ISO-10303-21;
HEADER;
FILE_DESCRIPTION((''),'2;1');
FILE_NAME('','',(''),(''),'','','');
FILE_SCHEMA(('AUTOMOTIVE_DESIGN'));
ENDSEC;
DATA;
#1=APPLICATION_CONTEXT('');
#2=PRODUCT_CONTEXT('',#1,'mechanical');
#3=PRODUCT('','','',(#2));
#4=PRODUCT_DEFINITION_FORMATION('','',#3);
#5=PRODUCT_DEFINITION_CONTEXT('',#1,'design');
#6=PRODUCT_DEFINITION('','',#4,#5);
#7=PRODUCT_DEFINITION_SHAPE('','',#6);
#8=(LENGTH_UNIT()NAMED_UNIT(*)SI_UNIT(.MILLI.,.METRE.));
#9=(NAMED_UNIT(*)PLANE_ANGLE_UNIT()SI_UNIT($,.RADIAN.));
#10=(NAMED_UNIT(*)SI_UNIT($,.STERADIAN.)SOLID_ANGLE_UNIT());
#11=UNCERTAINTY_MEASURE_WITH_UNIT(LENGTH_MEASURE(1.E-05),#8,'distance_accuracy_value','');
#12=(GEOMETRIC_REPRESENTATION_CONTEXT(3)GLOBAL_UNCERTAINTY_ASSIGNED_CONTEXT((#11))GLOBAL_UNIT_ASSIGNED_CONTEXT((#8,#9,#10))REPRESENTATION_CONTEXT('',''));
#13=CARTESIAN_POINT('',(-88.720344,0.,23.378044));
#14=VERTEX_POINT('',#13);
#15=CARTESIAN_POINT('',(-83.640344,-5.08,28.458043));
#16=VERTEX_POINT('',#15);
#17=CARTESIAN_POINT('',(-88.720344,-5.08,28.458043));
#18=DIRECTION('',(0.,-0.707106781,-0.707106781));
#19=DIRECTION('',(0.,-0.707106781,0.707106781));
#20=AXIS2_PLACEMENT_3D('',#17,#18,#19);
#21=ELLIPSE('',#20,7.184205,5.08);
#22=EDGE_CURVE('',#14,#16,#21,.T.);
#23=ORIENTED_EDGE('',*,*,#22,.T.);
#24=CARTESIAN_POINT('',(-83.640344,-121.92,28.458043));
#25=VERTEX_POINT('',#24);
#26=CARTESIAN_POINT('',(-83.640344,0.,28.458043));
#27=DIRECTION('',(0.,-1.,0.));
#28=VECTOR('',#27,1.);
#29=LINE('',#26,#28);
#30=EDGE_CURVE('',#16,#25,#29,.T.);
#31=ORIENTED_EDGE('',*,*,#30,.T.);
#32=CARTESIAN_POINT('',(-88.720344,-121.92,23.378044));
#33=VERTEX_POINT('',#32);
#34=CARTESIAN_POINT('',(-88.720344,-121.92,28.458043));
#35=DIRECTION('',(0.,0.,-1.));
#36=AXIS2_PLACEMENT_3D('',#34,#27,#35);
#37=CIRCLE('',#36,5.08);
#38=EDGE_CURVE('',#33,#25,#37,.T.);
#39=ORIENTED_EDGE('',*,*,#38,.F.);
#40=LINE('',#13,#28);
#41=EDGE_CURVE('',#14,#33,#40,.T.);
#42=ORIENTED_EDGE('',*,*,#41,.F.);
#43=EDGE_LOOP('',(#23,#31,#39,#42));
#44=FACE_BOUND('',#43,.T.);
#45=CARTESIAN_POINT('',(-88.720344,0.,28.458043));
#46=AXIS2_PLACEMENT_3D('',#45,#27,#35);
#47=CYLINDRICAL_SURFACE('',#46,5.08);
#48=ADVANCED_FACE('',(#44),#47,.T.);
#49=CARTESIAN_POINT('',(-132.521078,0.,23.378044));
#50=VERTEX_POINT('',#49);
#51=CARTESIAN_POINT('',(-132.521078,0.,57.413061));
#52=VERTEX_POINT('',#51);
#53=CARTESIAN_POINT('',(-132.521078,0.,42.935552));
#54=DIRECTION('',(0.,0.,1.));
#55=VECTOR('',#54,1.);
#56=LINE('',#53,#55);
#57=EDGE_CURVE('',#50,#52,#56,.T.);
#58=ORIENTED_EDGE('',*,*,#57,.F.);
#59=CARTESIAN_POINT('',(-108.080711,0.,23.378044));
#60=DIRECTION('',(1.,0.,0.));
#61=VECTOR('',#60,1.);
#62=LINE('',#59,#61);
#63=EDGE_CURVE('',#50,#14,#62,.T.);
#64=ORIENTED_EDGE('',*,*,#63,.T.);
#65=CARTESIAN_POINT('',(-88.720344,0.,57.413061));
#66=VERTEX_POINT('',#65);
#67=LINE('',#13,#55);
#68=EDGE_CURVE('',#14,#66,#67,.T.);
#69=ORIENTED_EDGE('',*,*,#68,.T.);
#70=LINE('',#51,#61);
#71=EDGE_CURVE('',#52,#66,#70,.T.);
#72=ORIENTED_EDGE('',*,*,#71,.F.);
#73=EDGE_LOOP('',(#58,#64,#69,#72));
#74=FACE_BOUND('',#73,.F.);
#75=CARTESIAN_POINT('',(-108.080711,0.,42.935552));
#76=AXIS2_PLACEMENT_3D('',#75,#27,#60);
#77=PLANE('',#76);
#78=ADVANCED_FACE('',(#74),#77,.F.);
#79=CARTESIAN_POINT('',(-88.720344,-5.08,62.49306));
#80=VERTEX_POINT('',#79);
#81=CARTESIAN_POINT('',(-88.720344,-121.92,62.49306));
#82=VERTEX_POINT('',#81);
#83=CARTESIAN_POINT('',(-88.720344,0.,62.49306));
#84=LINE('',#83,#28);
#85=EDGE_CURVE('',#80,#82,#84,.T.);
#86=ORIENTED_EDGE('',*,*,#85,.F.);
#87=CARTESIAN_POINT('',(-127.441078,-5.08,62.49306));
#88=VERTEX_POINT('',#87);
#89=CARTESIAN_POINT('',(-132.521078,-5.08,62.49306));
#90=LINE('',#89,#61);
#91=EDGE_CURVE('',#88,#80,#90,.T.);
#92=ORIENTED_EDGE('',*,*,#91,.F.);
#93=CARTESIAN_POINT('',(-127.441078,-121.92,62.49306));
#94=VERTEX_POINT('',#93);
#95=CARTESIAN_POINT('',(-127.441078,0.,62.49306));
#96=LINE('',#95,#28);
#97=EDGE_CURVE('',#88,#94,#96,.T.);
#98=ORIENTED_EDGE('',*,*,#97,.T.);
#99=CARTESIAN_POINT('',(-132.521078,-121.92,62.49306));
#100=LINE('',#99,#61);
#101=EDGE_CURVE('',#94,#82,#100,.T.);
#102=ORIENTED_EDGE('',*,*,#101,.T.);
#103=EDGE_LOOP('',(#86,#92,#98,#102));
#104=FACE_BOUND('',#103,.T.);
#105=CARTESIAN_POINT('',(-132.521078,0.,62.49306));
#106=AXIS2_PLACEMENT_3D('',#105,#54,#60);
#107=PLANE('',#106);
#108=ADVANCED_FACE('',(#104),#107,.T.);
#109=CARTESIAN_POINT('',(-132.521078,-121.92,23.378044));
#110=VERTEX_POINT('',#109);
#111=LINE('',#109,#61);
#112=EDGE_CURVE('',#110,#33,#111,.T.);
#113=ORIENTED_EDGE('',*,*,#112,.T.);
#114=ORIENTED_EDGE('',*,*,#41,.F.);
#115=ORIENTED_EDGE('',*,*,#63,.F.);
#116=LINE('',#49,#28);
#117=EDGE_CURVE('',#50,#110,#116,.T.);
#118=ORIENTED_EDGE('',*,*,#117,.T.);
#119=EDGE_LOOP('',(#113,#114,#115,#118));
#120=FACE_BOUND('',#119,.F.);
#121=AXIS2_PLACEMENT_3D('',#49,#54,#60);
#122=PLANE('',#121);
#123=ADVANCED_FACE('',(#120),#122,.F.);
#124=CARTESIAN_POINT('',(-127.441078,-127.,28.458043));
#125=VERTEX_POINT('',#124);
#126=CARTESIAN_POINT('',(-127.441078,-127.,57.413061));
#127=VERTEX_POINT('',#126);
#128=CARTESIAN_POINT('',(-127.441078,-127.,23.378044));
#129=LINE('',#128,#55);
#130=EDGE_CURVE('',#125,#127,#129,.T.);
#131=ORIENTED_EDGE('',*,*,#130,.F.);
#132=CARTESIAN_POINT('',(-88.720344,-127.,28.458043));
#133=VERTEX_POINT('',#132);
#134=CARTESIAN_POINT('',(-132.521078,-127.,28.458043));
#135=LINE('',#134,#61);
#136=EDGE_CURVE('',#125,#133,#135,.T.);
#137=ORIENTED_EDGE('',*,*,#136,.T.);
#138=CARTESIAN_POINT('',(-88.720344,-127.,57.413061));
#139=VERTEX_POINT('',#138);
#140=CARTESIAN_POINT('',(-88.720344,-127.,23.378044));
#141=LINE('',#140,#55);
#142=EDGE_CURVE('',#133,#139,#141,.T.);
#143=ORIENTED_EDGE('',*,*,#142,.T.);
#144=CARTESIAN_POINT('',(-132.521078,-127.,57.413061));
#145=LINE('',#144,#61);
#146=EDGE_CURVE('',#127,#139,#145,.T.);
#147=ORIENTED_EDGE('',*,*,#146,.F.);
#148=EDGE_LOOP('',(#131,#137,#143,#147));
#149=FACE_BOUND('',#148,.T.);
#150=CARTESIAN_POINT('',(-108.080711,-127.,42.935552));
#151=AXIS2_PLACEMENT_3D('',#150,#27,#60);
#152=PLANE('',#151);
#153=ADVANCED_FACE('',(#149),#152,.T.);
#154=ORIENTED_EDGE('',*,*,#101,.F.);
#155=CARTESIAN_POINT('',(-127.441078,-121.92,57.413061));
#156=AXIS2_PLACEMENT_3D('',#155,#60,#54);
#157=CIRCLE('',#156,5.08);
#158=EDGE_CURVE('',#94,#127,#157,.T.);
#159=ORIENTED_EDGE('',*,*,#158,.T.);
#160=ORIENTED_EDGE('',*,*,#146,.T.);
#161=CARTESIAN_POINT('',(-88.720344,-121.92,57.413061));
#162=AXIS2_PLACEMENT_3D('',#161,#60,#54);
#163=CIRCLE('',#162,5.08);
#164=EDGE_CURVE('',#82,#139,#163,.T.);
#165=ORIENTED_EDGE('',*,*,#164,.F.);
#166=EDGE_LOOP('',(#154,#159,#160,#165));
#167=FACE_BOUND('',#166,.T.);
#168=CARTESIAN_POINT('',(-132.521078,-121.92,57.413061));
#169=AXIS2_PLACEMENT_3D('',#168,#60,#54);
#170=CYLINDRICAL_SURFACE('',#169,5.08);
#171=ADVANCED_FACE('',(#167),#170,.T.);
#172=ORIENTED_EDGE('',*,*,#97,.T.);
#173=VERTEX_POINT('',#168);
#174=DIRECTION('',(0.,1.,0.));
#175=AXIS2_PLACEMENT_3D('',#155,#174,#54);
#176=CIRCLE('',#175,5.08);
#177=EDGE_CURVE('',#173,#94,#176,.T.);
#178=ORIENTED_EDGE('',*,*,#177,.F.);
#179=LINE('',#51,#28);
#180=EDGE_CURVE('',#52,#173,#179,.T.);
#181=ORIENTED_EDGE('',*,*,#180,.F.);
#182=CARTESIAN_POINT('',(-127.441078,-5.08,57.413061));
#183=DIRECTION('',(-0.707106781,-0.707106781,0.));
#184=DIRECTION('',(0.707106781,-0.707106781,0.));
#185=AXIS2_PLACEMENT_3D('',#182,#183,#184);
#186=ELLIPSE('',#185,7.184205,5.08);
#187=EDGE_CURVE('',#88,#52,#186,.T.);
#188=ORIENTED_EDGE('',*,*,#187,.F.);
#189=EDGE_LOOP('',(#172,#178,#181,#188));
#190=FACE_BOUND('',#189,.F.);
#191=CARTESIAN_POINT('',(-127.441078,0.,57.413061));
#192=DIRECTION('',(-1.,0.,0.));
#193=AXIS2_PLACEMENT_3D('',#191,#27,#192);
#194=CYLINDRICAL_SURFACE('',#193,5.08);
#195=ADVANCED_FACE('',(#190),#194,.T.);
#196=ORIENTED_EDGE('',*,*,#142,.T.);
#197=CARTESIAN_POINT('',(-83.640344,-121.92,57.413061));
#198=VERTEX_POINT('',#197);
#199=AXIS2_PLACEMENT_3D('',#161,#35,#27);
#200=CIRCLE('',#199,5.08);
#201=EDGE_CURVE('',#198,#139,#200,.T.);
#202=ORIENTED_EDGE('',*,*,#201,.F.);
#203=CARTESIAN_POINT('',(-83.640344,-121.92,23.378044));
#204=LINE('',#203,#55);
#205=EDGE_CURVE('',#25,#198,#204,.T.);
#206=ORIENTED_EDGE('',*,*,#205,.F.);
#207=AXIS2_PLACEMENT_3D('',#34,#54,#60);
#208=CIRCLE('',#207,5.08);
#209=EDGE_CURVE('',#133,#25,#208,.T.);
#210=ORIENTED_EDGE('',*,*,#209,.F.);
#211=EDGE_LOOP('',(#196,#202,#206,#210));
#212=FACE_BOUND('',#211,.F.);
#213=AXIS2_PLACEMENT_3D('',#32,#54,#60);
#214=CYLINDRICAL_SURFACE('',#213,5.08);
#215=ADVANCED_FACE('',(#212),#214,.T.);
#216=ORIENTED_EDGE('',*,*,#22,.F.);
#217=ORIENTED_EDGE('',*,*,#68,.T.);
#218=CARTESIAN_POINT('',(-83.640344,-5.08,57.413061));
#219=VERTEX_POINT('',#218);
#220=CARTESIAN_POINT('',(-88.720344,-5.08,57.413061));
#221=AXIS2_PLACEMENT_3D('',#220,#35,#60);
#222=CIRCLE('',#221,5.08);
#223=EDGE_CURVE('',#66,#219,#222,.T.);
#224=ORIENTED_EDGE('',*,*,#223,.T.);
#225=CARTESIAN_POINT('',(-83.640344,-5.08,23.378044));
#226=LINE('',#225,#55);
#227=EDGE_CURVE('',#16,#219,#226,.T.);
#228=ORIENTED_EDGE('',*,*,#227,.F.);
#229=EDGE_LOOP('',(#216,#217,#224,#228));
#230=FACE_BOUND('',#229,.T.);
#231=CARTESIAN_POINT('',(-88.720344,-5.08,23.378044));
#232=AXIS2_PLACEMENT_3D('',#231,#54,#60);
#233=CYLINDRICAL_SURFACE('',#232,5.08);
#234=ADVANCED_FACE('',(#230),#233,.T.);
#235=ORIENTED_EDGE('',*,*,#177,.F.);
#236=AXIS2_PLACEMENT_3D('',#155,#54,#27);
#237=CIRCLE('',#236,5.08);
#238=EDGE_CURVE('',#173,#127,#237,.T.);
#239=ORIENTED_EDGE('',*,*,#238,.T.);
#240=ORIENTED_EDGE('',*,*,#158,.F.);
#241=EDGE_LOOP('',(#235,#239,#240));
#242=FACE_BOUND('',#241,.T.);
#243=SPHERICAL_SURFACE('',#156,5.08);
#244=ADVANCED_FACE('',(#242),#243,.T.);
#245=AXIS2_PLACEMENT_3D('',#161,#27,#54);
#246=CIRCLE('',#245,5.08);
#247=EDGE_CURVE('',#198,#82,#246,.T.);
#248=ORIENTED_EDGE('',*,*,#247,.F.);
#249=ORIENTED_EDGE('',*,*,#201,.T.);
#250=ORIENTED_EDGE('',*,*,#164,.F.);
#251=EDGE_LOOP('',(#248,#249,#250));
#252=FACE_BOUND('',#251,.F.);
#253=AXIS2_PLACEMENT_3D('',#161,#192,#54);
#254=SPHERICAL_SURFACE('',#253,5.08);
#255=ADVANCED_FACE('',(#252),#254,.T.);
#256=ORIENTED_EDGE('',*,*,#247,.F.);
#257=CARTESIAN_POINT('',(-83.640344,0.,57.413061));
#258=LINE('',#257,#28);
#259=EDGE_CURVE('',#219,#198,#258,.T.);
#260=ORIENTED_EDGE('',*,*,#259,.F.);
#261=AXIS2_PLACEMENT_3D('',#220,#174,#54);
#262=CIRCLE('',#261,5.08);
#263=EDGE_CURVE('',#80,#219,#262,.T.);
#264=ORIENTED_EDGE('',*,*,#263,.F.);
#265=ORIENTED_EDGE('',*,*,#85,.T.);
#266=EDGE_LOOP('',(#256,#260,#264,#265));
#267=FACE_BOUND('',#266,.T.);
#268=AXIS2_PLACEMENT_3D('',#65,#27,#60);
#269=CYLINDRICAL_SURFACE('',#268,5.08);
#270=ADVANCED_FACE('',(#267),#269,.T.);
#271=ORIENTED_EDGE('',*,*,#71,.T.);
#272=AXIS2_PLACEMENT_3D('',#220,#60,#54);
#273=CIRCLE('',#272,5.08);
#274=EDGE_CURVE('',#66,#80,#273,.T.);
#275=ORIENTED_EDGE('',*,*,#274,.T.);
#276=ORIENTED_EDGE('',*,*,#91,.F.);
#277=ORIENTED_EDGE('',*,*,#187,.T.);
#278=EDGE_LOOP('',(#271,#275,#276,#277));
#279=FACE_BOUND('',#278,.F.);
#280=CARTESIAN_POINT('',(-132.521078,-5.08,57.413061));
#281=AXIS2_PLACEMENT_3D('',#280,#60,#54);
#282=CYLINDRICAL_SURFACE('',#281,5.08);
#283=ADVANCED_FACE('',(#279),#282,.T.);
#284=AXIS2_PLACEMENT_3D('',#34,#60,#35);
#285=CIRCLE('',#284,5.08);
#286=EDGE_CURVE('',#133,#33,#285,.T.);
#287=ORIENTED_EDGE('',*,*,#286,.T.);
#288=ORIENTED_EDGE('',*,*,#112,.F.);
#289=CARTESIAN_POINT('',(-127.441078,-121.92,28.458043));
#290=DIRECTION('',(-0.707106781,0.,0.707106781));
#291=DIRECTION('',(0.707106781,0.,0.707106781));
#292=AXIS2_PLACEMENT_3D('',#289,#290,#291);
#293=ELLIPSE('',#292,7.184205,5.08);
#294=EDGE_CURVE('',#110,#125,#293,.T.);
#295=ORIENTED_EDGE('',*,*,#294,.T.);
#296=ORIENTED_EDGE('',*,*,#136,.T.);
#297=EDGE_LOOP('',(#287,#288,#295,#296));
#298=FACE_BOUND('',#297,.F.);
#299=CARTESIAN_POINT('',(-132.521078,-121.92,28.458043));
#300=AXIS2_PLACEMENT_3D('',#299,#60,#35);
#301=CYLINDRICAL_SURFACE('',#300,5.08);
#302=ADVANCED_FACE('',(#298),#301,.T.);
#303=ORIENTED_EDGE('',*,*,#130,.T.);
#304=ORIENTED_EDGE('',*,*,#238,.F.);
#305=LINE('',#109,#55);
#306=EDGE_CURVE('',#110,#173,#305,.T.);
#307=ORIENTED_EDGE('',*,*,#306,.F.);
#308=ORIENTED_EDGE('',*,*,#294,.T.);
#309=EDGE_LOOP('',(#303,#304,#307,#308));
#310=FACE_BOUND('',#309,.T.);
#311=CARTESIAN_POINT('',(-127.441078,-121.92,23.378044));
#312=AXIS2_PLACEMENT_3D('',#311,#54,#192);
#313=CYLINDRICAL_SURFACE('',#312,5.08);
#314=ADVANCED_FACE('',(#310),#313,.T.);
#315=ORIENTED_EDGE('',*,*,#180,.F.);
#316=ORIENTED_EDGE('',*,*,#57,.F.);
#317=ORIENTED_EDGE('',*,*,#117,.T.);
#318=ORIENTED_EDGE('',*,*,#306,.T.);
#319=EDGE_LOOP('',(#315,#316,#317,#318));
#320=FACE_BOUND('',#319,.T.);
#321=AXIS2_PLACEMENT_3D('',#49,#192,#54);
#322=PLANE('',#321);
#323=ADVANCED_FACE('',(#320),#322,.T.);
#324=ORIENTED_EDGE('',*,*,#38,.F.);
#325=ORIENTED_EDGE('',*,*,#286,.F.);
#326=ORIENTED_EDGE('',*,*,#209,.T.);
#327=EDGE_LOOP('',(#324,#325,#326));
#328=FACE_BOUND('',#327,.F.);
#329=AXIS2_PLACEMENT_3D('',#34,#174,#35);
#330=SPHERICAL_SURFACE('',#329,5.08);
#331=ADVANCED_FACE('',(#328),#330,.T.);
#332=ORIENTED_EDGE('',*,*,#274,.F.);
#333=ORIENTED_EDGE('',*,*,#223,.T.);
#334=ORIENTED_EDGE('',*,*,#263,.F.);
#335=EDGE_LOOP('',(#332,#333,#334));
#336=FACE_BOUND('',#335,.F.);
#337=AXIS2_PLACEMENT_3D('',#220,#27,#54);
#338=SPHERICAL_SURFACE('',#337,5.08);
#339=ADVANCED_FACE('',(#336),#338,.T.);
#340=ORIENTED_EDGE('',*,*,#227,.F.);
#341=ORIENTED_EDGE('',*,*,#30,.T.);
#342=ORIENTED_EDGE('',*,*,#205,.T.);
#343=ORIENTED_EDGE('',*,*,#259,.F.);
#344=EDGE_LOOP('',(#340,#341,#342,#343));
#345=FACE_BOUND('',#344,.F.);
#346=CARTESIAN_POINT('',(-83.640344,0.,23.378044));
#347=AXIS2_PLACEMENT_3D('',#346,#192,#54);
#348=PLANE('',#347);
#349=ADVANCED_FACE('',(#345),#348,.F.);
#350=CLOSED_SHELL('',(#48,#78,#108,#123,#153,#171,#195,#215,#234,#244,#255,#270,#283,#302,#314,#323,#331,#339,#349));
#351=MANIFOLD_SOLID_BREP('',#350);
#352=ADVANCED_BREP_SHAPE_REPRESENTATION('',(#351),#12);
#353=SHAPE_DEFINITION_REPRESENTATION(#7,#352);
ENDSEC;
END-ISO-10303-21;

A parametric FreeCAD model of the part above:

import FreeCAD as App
import Part
import Sketcher

V = App.Vector
Q = App.Units.Quantity


def edges_at(feature, points):
    """Names of the edges that pass closest to the given points."""
    edges = feature.Shape.Edges
    near = lambda p: min(range(len(edges)), key=lambda i: edges[i].distToShape(Part.Vertex(*p))[0])
    return sorted({f"Edge{near(p) + 1}" for p in points})

doc = App.newDocument("Part")
body = doc.addObject("PartDesign::Body", "Body")

# Sketch on XZ plane
sketch1 = doc.addObject("Sketcher::SketchObject", "Sketch")
body.addObject(sketch1)
sketch1.AttachmentSupport = (doc.XZ_Plane, [""])
sketch1.MapMode = "FlatFace"
sketch1.addGeometry([
    Part.LineSegment(V(-133, 62, 0), V(-133, 23, 0)),
    Part.LineSegment(V(-133, 23, 0), V(-84, 23, 0)),
    Part.LineSegment(V(-84, 23, 0), V(-84, 62, 0)),
    Part.LineSegment(V(-84, 62, 0), V(-133, 62, 0)),
], False)
sketch1.addConstraint([
    Sketcher.Constraint("Coincident", 0, 2, 1, 1),
    Sketcher.Constraint("Coincident", 1, 2, 2, 1),
    Sketcher.Constraint("Coincident", 2, 2, 3, 1),
    Sketcher.Constraint("Coincident", 3, 2, 0, 1),
    Sketcher.Constraint("Vertical", 0),
    Sketcher.Constraint("Horizontal", 1),
    Sketcher.Constraint("Vertical", 2),
    Sketcher.Constraint("Horizontal", 3),
    Sketcher.Constraint("DistanceX", 1, 1, 1, 2, 48.880734),
    Sketcher.Constraint("DistanceY", 0, 2, 0, 1, 39.115017),
    Sketcher.Constraint("DistanceY", -1, 1, 2, 2, 62.49306),
    Sketcher.Constraint("DistanceX", 0, 2, -1, 1, 132.521078),
])
pad1 = doc.addObject("PartDesign::Pad", "Pad")
body.addObject(pad1)
pad1.Profile = sketch1
pad1.Length = Q("5 in")
doc.recompute()

fillet = doc.addObject("PartDesign::Fillet", "Fillet")
body.addObject(fillet)
fillet.Base = (pad1, edges_at(pad1, [
    (-108.081, -127, 62.493),
    (-83.64, -63.5, 62.493),
    (-108.081, 0, 62.493),
    (-132.521, -63.5, 62.493),
    (-83.64, -63.5, 23.378),
    (-108.081, -127, 23.378),
    (-132.521, -127, 42.936),
    (-83.64, -127, 42.936),
    (-83.64, 0, 42.936),
]))
fillet.Radius = Q("0.2 in")

doc.recompute()
